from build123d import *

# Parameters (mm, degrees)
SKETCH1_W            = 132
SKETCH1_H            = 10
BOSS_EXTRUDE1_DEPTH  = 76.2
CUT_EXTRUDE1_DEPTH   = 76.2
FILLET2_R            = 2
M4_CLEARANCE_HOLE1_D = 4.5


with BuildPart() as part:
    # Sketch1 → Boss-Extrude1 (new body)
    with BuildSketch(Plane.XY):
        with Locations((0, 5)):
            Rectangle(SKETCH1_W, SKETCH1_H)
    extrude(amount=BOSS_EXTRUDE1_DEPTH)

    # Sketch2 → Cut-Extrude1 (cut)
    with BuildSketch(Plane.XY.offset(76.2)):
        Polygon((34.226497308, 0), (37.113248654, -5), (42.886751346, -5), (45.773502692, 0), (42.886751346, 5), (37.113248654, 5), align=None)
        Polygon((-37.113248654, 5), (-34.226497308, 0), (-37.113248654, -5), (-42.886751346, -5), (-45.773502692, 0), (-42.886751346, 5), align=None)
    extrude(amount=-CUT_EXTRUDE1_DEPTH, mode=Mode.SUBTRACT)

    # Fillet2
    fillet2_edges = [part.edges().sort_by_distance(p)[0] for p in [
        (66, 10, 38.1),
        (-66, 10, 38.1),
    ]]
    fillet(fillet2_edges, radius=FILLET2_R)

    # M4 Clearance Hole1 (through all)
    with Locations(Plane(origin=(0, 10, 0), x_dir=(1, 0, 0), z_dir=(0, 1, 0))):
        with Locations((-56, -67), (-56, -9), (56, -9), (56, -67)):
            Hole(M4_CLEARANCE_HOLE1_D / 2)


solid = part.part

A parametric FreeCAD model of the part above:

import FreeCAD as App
import Part
import Sketcher

V = App.Vector
Q = App.Units.Quantity


def edges_at(feature, points):
    """Names of the edges that pass closest to the given points."""
    edges = feature.Shape.Edges
    near = lambda p: min(range(len(edges)), key=lambda i: edges[i].distToShape(Part.Vertex(*p))[0])
    return sorted({f"Edge{near(p) + 1}" for p in points})


def add_polygon(sketch, points):
    """Adds a closed chain of lines whose ends are joined by coincident constraints."""
    first, n = sketch.GeometryCount, len(points)
    for a, b in zip(points, points[1:] + points[:1]):
        sketch.addGeometry(Part.LineSegment(App.Vector(*a, 0), App.Vector(*b, 0)), False)
    for i in range(n):
        sketch.addConstraint(Sketcher.Constraint("Coincident", first + i, 2, first + (i + 1) % n, 1))

doc = App.newDocument("Part")
body = doc.addObject("PartDesign::Body", "Body")

sketch1 = body.newObject("Sketcher::SketchObject", "Sketch")
sketch1.AttachmentSupport = (doc.getObject("XY_Plane"), [""])
sketch1.MapMode = "FlatFace"
add_polygon(sketch1, [(-66, 10), (-66, 0), (66, 0), (66, 10)])
sketch1.addConstraint([
    Sketcher.Constraint("Vertical", 0),
    Sketcher.Constraint("Horizontal", 1),
    Sketcher.Constraint("Vertical", 2),
    Sketcher.Constraint("Horizontal", 3),
    Sketcher.Constraint("Symmetric", 0, 2, 1, 2, -1, 1),
    Sketcher.Constraint("DistanceX", 1, 1, 1, 2, 132.0),
    Sketcher.Constraint("DistanceY", 0, 2, 0, 1, 10.0),
])
pad1 = body.newObject("PartDesign::Pad", "Pad")
pad1.Profile = sketch1
pad1.Length = 76.2

sketch2 = body.newObject("Sketcher::SketchObject", "Sketch001")
sketch2.AttachmentSupport = (doc.getObject("XY_Plane"), [""])
sketch2.MapMode = "FlatFace"
sketch2.AttachmentOffset = App.Placement(V(0, 0, 76.2), App.Rotation())
add_polygon(sketch2, [(34.226497, 0), (37.113249, -5), (42.886751, -5), (45.773503, 0), (42.886751, 5), (37.113249, 5)])
add_polygon(sketch2, [(-34.226497, 0), (-37.113249, 5), (-42.886751, 5), (-45.773503, 0), (-42.886751, -5), (-37.113249, -5)])
sketch2.addConstraint([
    Sketcher.Constraint("Horizontal", 1),
    Sketcher.Constraint("Horizontal", 4),
    Sketcher.Constraint("Horizontal", 7),
    Sketcher.Constraint("Horizontal", 10),
    Sketcher.Constraint("Symmetric", 0, 2, 6, 2, -1, 1),
    Sketcher.Constraint("Symmetric", 2, 2, 8, 2, -1, 1),
    Sketcher.Constraint("Symmetric", 3, 2, 9, 2, -1, 1),
    Sketcher.Constraint("Symmetric", 5, 2, 11, 2, -1, 1),
    Sketcher.Constraint("Symmetric", 4, 2, 6, 2, -2),
    Sketcher.Constraint("PointOnObject", 2, 2, -1),
    Sketcher.Constraint("PointOnObject", 5, 2, -1),
    Sketcher.Constraint("Parallel", 0, 3),
    Sketcher.Constraint("Parallel", 2, 5),
    Sketcher.Constraint("Parallel", 5, 8),
    Sketcher.Constraint("Parallel", 8, 11),
    Sketcher.Constraint("Angle", 0, Q("-60 deg")),
    Sketcher.Constraint("DistanceY", 0, 2, -1, 1, 5.0),
    Sketcher.Constraint("DistanceX", 6, 2, 3, 2, 80.0),
    Sketcher.Constraint("DistanceX", 1, 1, 1, 2, 5.773503),
])
pocket1 = body.newObject("PartDesign::Pocket", "Pocket")
pocket1.Profile = sketch2
pocket1.Length = 76.2
doc.recompute()

fillet = body.newObject("PartDesign::Fillet", "Fillet")
fillet.Base = (pocket1, edges_at(pocket1, [(66, 10, 38.1), (-66, 10, 38.1)]))
fillet.Radius = 2

sketch3 = body.newObject("Sketcher::SketchObject", "Sketch002")
sketch3.AttachmentSupport = (doc.getObject("XZ_Plane"), [""])
sketch3.MapMode = "FlatFace"
sketch3.AttachmentOffset = App.Placement(V(0, 0, -10), App.Rotation())
sketch3.addGeometry([
    Part.Circle(V(-56, 67, 0), V(0, 0, 1), 2.25),
    Part.Circle(V(-56, 9, 0), V(0, 0, 1), 2.25),
    Part.Circle(V(56, 9, 0), V(0, 0, 1), 2.25),
    Part.Circle(V(56, 67, 0), V(0, 0, 1), 2.25),
], False)
sketch3.addConstraint([
    Sketcher.Constraint("Equal", 0, 1),
    Sketcher.Constraint("Equal", 1, 2),
    Sketcher.Constraint("Equal", 2, 3),
    Sketcher.Constraint("Symmetric", 1, 3, 2, 3, -2),
    Sketcher.Constraint("Symmetric", 0, 3, 3, 3, -2),
    Sketcher.Constraint("Vertical", 0, 3, 1, 3),
    Sketcher.Constraint("Diameter", 0, 4.5),
    Sketcher.Constraint("DistanceX", 0, 3, -1, 1, 56.0),
    Sketcher.Constraint("DistanceY", -1, 1, 0, 3, 67.0),
    Sketcher.Constraint("DistanceY", -1, 1, 1, 3, 9.0),
])
doc.recompute()
hole = body.newObject("PartDesign::Hole", "Hole")
hole.Profile = sketch3
hole.ThreadType = "None"
hole.Diameter = 4.5
hole.DepthType = "ThroughAll"
hole.Reversed = True

doc.recompute()
